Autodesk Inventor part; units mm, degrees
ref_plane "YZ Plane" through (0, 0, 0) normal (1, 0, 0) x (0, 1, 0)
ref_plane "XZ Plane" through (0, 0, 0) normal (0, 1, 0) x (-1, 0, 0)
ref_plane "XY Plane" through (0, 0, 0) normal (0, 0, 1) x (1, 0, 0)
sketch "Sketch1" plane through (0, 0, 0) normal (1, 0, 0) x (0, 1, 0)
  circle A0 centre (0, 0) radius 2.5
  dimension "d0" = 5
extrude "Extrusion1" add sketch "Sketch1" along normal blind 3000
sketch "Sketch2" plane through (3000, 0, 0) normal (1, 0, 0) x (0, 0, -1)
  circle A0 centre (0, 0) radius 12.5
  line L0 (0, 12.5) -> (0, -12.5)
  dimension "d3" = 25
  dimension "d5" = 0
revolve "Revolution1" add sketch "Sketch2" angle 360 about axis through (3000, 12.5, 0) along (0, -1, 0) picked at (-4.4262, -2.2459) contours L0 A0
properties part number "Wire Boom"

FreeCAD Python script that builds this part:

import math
import FreeCAD as App
import Part
import Sketcher
Q = App.Units.Quantity

doc = App.newDocument("Part")
body = doc.addObject("PartDesign::Body", "Body")

# Sketch on YZ plane
sketch1 = doc.addObject("Sketcher::SketchObject", "Sketch")
body.addObject(sketch1)
sketch1.AttachmentSupport = (doc.YZ_Plane, [""])
sketch1.MapMode = "FlatFace"
sketch1.addGeometry(Part.Circle(App.Vector(0, 0, 0), App.Vector(0, 0, 1), 2.5), False)
sketch1.addConstraint([
    Sketcher.Constraint("Coincident", 0, 3, -1, 1),
    Sketcher.Constraint("Diameter", 0, Q("5 mm")),
])
pad1 = doc.addObject("PartDesign::Pad", "Pad")
body.addObject(pad1)
pad1.Profile = sketch1
pad1.Length = 3000

# Sketch on YZ plane
sketch2 = doc.addObject("Sketcher::SketchObject", "Sketch001")
body.addObject(sketch2)
sketch2.AttachmentSupport = (doc.YZ_Plane, [""])
sketch2.MapMode = "FlatFace"
sketch2.AttachmentOffset = App.Placement(App.Vector(0, 0, 3000), App.Rotation())
sketch2.addGeometry([
    Part.LineSegment(App.Vector(-12.5, 0, 0), App.Vector(12.5, 0, 0)),
    Part.ArcOfCircle(Part.Circle(App.Vector(0, 0, 0), App.Vector(0, 0, 1), 12.5), math.radians(0), math.radians(180)),
], False)
sketch2.addConstraint([
    Sketcher.Constraint("Coincident", 0, 1, 1, 2),
    Sketcher.Constraint("Coincident", 1, 1, 0, 2),
    Sketcher.Constraint("Horizontal", 0),
    Sketcher.Constraint("Coincident", 1, 3, -1, 1),
    Sketcher.Constraint("PointOnObject", 0, 1, -1),
    Sketcher.Constraint("Radius", 1, Q("12.5 mm")),
])
revolution = doc.addObject("PartDesign::Revolution", "Revolution")
body.addObject(revolution)
revolution.Profile = sketch2
revolution.ReferenceAxis = (sketch2, ["H_Axis"])
revolution.Angle = 360

doc.recompute()
